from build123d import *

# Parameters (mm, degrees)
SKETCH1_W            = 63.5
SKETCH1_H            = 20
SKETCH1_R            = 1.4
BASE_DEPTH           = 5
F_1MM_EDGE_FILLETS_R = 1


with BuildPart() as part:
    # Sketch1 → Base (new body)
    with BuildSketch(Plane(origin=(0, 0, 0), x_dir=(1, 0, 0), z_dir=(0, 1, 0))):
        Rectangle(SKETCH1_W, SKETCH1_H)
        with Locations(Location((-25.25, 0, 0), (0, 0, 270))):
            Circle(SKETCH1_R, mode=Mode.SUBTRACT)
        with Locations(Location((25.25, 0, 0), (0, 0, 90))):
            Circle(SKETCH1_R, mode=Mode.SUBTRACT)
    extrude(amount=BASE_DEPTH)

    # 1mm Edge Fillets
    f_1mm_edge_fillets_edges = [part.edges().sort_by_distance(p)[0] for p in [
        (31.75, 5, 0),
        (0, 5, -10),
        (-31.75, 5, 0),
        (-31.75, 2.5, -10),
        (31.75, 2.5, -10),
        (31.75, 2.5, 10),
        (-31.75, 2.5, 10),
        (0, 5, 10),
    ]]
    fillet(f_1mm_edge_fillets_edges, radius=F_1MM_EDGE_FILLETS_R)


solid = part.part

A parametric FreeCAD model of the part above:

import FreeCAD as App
import Part
import Sketcher


def edges_at(feature, points):
    """Names of the edges that pass closest to the given points."""
    edges = feature.Shape.Edges
    near = lambda p: min(range(len(edges)), key=lambda i: edges[i].distToShape(Part.Vertex(*p))[0])
    return sorted({f"Edge{near(p) + 1}" for p in points})


def add_polygon(sketch, points):
    """Adds a closed chain of lines whose ends are joined by coincident constraints."""
    first, n = sketch.GeometryCount, len(points)
    for a, b in zip(points, points[1:] + points[:1]):
        sketch.addGeometry(Part.LineSegment(App.Vector(*a, 0), App.Vector(*b, 0)), False)
    for i in range(n):
        sketch.addConstraint(Sketcher.Constraint("Coincident", first + i, 2, first + (i + 1) % n, 1))

doc = App.newDocument("Part")
body = doc.addObject("PartDesign::Body", "Body")

# Sketch on XZ plane
sketch1 = body.newObject("Sketcher::SketchObject", "Sketch")
sketch1.AttachmentSupport = (doc.getObject("XZ_Plane"), [""])
sketch1.MapMode = "FlatFace"
add_polygon(sketch1, [(-31.8, -10), (-31.8, 10), (31.8, 10), (31.8, -10)])  # lines 0-3
sketch1.addGeometry(Part.Circle(App.Vector(-25.2, 0, 0), App.Vector(0, 0, 1), 1.4), False)  # 4
sketch1.addGeometry(Part.Circle(App.Vector(25.2, 0, 0), App.Vector(0, 0, 1), 1.4), False)  # 5
sketch1.addConstraint(Sketcher.Constraint("Vertical", 0))
sketch1.addConstraint(Sketcher.Constraint("Horizontal", 1))
sketch1.addConstraint(Sketcher.Constraint("Vertical", 2))
sketch1.addConstraint(Sketcher.Constraint("Horizontal", 3))
sketch1.addConstraint(Sketcher.Constraint("Equal", 4, 5))
sketch1.addConstraint(Sketcher.Constraint("Symmetric", 4, 3, 5, 3, -1, 1))
sketch1.addConstraint(Sketcher.Constraint("Symmetric", 0, 2, 2, 2, -1, 1))
sketch1.addConstraint(Sketcher.Constraint("PointOnObject", 4, 3, -1))
sketch1.addConstraint(Sketcher.Constraint("Diameter", 4, 2.8))
sketch1.addConstraint(Sketcher.Constraint("DistanceY", 0, 1, 0, 2, 20.0))
sketch1.addConstraint(Sketcher.Constraint("DistanceX", 1, 1, 1, 2, 63.5))
sketch1.addConstraint(Sketcher.Constraint("DistanceX", 0, 2, 5, 3, 57.0))
pad1 = body.newObject("PartDesign::Pad", "Pad")
pad1.Profile = sketch1
pad1.Length = 5
pad1.Reversed = True
doc.recompute()

fillet = body.newObject("PartDesign::Fillet", "Fillet")
fillet.Base = (pad1, edges_at(pad1, [
    (31.75, 5, 0),
    (0, 5, -10),
    (-31.75, 5, 0),
    (-31.75, 2.5, -10),
    (31.75, 2.5, -10),
    (31.75, 2.5, 10),
    (-31.75, 2.5, 10),
    (0, 5, 10),
]))
fillet.Radius = 1

doc.recompute()
